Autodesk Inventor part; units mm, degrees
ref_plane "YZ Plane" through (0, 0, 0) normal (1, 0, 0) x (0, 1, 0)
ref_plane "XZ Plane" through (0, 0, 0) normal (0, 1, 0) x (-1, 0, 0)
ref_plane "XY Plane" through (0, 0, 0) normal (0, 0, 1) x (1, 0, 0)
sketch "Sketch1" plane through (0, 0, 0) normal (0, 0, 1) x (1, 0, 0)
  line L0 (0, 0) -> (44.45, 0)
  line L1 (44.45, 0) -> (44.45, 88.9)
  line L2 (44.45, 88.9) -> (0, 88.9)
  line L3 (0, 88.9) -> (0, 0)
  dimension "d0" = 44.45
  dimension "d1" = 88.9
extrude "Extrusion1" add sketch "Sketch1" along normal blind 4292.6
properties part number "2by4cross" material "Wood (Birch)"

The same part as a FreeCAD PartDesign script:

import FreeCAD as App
import Part
import Sketcher
from FreeCAD import Vector
Q = App.Units.Quantity

doc = App.newDocument("Part")
body = doc.addObject("PartDesign::Body", "Body")

sketch1 = doc.addObject("Sketcher::SketchObject", "Sketch")
body.addObject(sketch1)
sketch1.AttachmentSupport = (doc.XY_Plane, [""])
sketch1.MapMode = "FlatFace"
sketch1.addGeometry([
    Part.LineSegment(Vector(0, 89, 0), Vector(0, 0, 0)),
    Part.LineSegment(Vector(0, 0, 0), Vector(44, 0, 0)),
    Part.LineSegment(Vector(44, 0, 0), Vector(44, 89, 0)),
    Part.LineSegment(Vector(44, 89, 0), Vector(0, 89, 0)),
], False)
sketch1.addConstraint([
    Sketcher.Constraint("Coincident", 0, 2, 1, 1),
    Sketcher.Constraint("Coincident", 1, 2, 2, 1),
    Sketcher.Constraint("Coincident", 2, 2, 3, 1),
    Sketcher.Constraint("Coincident", 3, 2, 0, 1),
    Sketcher.Constraint("Vertical", 0),
    Sketcher.Constraint("Horizontal", 1),
    Sketcher.Constraint("Vertical", 2),
    Sketcher.Constraint("Horizontal", 3),
    Sketcher.Constraint("Coincident", 0, 2, -1, 1),
    Sketcher.Constraint("DistanceY", 0, 2, 0, 1, Q("3.5 in")),
    Sketcher.Constraint("DistanceX", 1, 1, 1, 2, Q("1.75 in")),
])
pad1 = doc.addObject("PartDesign::Pad", "Pad")
body.addObject(pad1)
pad1.Profile = sketch1
pad1.Length = Q("169 in")

doc.recompute()
